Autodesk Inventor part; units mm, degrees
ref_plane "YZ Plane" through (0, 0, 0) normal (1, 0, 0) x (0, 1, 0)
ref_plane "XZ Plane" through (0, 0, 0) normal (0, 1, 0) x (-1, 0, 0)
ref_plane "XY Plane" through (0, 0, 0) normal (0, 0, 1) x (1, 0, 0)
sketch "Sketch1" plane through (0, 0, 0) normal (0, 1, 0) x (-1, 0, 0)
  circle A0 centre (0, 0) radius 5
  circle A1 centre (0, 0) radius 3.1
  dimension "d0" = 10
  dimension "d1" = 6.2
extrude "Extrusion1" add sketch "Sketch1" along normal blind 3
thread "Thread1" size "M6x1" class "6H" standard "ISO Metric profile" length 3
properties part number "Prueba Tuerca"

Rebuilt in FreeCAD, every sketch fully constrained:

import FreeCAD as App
import Part
import Sketcher

V = App.Vector

doc = App.newDocument("Part")
params = doc.addObject("Spreadsheet::Sheet", "Params")
for row, (alias, value) in enumerate([
    ("sketch1_diameter", "10 mm"),
    ("sketch1_diameter2", "6.2 mm"),
    ("pad1_length", "3 mm"),
], start=1):
    params.set(f"A{row}", alias)
    params.set(f"B{row}", "=" + value)
    params.setAlias(f"B{row}", alias)

body = doc.addObject("PartDesign::Body", "Body")

# Sketch on XZ plane
sketch1 = body.newObject("Sketcher::SketchObject", "Sketch")
sketch1.AttachmentSupport = (doc.getObject("XZ_Plane"), [""])
sketch1.MapMode = "FlatFace"
sketch1.addGeometry(Part.Circle(V(0, 0, 0), V(0, 0, 1), 5), False)
sketch1.addGeometry(Part.Circle(V(0, 0, 0), V(0, 0, 1), 3.1), False)
sketch1.addConstraint(Sketcher.Constraint("Coincident", 0, 3, -1, 1))
sketch1.addConstraint(Sketcher.Constraint("Coincident", 1, 3, -1, 1))
sketch1.addConstraint(Sketcher.Constraint("Diameter", 0, 10.0))
sketch1.addConstraint(Sketcher.Constraint("Diameter", 1, 6.2))
sketch1.setExpression("Constraints[2]", "Params.sketch1_diameter")
sketch1.setExpression("Constraints[3]", "Params.sketch1_diameter2")
pad1 = body.newObject("PartDesign::Pad", "Pad")
pad1.Profile = sketch1
pad1.setExpression("Length", "Params.pad1_length")
pad1.Reversed = True

doc.recompute()
